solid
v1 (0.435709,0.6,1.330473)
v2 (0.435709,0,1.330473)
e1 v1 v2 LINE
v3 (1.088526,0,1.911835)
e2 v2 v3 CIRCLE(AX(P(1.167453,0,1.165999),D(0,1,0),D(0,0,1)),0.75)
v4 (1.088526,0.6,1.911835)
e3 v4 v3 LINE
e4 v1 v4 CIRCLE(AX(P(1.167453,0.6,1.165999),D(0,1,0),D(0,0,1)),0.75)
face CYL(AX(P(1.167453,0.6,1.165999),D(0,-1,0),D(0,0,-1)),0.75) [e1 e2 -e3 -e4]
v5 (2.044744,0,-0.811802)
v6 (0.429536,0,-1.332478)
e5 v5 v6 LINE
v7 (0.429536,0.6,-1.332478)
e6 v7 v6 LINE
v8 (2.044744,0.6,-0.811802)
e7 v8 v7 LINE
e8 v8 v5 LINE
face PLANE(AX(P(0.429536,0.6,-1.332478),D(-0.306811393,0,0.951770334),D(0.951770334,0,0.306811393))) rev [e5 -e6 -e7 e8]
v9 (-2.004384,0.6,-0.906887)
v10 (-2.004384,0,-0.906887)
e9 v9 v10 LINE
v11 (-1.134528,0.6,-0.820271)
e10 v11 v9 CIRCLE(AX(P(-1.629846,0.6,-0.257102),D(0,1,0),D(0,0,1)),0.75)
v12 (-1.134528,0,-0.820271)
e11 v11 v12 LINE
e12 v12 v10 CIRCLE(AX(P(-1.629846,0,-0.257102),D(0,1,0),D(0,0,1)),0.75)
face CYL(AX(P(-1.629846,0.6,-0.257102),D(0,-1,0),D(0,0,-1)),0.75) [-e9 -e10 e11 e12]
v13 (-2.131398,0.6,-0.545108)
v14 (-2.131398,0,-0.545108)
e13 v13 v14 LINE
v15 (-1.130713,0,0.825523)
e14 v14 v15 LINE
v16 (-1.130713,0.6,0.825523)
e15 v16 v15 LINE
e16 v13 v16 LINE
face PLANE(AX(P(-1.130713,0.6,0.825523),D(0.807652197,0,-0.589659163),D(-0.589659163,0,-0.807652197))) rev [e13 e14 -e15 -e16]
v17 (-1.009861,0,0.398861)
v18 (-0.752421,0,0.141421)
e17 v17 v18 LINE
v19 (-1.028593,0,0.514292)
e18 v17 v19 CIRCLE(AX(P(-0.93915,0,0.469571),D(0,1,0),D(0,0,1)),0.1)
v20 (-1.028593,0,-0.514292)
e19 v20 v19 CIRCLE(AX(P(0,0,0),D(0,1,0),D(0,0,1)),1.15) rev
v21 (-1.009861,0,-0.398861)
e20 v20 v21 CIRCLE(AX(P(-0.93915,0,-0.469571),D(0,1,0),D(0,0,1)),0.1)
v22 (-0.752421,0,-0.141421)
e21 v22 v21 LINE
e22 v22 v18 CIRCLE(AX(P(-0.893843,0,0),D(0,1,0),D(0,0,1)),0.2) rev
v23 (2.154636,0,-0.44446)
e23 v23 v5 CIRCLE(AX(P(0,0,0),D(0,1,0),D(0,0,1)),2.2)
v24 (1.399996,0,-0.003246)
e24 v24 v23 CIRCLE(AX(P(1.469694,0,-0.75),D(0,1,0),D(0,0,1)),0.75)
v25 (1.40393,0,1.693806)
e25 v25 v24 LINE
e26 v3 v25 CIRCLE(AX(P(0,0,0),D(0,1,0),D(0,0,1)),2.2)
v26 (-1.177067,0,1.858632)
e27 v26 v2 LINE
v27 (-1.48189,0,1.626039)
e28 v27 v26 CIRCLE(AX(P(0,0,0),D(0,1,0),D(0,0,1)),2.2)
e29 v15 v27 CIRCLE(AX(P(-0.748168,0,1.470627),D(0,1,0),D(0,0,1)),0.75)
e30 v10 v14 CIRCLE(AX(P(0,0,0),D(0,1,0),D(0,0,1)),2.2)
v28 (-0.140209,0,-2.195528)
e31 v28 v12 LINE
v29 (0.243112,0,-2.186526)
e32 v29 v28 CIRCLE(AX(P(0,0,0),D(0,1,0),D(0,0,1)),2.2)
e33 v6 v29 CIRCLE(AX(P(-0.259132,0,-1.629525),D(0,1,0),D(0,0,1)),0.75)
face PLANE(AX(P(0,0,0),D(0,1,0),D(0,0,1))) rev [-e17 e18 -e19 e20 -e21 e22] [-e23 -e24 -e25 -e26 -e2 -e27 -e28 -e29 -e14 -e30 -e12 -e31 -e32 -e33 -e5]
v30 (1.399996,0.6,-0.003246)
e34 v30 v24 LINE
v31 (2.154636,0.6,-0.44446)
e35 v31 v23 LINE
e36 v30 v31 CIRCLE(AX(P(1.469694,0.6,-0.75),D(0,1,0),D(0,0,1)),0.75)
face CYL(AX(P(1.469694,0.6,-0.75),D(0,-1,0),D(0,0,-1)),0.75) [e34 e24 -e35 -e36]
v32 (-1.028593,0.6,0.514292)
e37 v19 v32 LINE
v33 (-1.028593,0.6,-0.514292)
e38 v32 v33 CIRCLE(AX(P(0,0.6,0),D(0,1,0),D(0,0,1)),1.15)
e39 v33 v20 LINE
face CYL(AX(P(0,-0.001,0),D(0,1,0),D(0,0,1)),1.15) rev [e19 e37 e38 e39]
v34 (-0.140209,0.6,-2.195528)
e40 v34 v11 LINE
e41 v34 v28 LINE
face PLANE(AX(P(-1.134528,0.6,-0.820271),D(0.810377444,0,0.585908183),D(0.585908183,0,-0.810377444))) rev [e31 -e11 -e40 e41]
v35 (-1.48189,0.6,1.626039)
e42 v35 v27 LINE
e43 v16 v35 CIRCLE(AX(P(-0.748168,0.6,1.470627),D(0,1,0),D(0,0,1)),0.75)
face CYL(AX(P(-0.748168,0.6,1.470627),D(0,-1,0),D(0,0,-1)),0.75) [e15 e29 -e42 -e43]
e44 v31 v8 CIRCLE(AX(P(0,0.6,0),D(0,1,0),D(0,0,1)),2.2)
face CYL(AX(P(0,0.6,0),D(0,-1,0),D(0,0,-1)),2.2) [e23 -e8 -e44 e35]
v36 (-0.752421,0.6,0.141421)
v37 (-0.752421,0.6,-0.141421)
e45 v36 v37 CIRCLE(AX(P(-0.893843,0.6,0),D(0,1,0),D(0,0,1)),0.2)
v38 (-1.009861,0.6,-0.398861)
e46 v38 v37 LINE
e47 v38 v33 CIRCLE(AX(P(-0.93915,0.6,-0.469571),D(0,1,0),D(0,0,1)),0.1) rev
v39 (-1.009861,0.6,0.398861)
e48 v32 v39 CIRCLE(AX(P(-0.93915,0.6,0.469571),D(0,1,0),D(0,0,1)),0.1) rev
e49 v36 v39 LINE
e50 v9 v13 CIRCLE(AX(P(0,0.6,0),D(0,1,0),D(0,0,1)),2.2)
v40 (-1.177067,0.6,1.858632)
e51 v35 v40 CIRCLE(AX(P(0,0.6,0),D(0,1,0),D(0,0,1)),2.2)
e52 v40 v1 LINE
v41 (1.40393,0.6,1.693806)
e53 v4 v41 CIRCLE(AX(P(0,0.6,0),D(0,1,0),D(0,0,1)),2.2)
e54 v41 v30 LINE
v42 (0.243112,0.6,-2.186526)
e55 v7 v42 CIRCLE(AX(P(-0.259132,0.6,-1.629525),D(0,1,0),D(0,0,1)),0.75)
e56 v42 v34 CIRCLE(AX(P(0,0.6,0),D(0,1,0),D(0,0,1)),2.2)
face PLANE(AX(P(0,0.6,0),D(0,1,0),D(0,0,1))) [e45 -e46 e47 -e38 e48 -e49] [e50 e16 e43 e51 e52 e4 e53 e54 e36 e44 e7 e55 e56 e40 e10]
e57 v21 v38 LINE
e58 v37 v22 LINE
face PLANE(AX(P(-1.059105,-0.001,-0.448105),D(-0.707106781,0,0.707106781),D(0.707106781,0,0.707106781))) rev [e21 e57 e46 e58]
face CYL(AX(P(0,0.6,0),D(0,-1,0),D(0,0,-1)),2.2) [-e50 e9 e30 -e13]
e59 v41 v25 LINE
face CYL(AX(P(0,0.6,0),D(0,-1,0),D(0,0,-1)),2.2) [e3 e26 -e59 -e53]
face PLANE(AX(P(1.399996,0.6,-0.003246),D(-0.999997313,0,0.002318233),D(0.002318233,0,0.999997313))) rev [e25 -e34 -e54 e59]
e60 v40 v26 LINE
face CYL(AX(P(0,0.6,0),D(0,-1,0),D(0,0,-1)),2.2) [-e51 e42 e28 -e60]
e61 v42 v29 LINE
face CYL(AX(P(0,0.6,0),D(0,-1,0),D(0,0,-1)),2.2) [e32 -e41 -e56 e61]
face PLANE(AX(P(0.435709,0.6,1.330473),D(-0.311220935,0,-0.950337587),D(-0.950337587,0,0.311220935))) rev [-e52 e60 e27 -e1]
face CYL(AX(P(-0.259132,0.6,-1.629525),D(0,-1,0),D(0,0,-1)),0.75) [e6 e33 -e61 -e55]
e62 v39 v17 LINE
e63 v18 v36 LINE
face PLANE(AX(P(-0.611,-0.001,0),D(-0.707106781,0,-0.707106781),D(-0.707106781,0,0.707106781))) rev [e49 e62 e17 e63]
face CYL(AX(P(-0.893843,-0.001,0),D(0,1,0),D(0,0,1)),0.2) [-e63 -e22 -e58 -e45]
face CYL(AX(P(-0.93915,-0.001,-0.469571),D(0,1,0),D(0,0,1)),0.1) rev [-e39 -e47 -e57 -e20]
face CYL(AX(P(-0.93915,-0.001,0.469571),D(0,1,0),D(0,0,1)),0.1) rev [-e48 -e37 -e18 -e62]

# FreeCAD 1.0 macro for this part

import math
import FreeCAD as App
import Part
import Sketcher

V = App.Vector
Q = App.Units.Quantity


def edges_at(feature, points):
    """Names of the edges that pass closest to the given points."""
    edges = feature.Shape.Edges
    near = lambda p: min(range(len(edges)), key=lambda i: edges[i].distToShape(Part.Vertex(*p))[0])
    return sorted({f"Edge{near(p) + 1}" for p in points})

doc = App.newDocument("Part")
body = doc.addObject("PartDesign::Body", "Body")

# Sketch on XZ plane
sketch1 = body.newObject("Sketcher::SketchObject", "Sketch")
sketch1.AttachmentSupport = (doc.getObject("XZ_Plane"), [""])
sketch1.MapMode = "FlatFace"
sketch1.addGeometry(Part.LineSegment(V(-2.131398, -0.545108, 0), V(-1.130713, 0.825523, 0)), False)
sketch1.addGeometry(Part.ArcOfCircle(Part.Circle(V(-0.748168, 1.470627, 0), V(0, 0, 1), 0.75), math.radians(168.040762), math.radians(239.332199)), False)
sketch1.addGeometry(Part.ArcOfCircle(Part.Circle(V(0, 0, 0), V(0, 0, 1), 2.2), math.radians(122.345979), math.radians(132.344462)), False)
sketch1.addGeometry(Part.LineSegment(V(-1.177067, 1.858632, 0), V(0.435709, 1.330473, 0)), False)
sketch1.addGeometry(Part.ArcOfCircle(Part.Circle(V(1.167453, 1.165999, 0), V(0, 0, 1), 0.75), math.radians(96.040762), math.radians(167.332199)), False)
sketch1.addGeometry(Part.ArcOfCircle(Part.Circle(V(0, 0, 0), V(0, 0, 1), 2.2), math.radians(50.345978), math.radians(60.344463)), False)
sketch1.addGeometry(Part.LineSegment(V(1.40393, 1.693806, 0), V(1.399996, -0.003246, 0)), False)
sketch1.addGeometry(Part.ArcOfCircle(Part.Circle(V(1.469694, -0.75, 0), V(0, 0, 1), 0.75), math.radians(24.040762), math.radians(95.332199)), False)
sketch1.addGeometry(Part.ArcOfCircle(Part.Circle(V(0, 0, 0), V(0, 0, 1), 2.2), math.radians(-21.654022), math.radians(-11.655537)), False)
sketch1.addGeometry(Part.LineSegment(V(2.044744, -0.811802, 0), V(0.429536, -1.332478, 0)), False)
sketch1.addGeometry(Part.ArcOfCircle(Part.Circle(V(-0.259132, -1.629525, 0), V(0, 0, 1), 0.75), math.radians(-47.959238), math.radians(23.332199)), False)
sketch1.addGeometry(Part.ArcOfCircle(Part.Circle(V(0, 0, 0), V(0, 0, 1), 2.2), math.radians(-93.654021), math.radians(-83.655538)), False)
sketch1.addGeometry(Part.LineSegment(V(-0.140209, -2.195528, 0), V(-1.134528, -0.820271, 0)), False)
sketch1.addGeometry(Part.ArcOfCircle(Part.Circle(V(-1.629846, -0.257102, 0), V(0, 0, 1), 0.75), math.radians(-119.959238), math.radians(-48.667801)), False)
sketch1.addGeometry(Part.ArcOfCircle(Part.Circle(V(0, 0, 0), V(0, 0, 1), 2.2), math.radians(-165.654021), math.radians(-155.655538)), False)
sketch1.addConstraint(Sketcher.Constraint("Coincident", 0, 2, 1, 2))
sketch1.addConstraint(Sketcher.Constraint("Coincident", 1, 1, 2, 2))
sketch1.addConstraint(Sketcher.Constraint("Coincident", 2, 1, 3, 1))
sketch1.addConstraint(Sketcher.Constraint("Coincident", 3, 2, 4, 2))
sketch1.addConstraint(Sketcher.Constraint("Coincident", 4, 1, 5, 2))
sketch1.addConstraint(Sketcher.Constraint("Coincident", 5, 1, 6, 1))
sketch1.addConstraint(Sketcher.Constraint("Coincident", 6, 2, 7, 2))
sketch1.addConstraint(Sketcher.Constraint("Coincident", 7, 1, 8, 2))
sketch1.addConstraint(Sketcher.Constraint("Coincident", 8, 1, 9, 1))
sketch1.addConstraint(Sketcher.Constraint("Coincident", 9, 2, 10, 2))
sketch1.addConstraint(Sketcher.Constraint("Coincident", 10, 1, 11, 2))
sketch1.addConstraint(Sketcher.Constraint("Coincident", 11, 1, 12, 1))
sketch1.addConstraint(Sketcher.Constraint("Coincident", 12, 2, 13, 2))
sketch1.addConstraint(Sketcher.Constraint("Coincident", 13, 1, 14, 2))
sketch1.addConstraint(Sketcher.Constraint("Coincident", 14, 1, 0, 1))
sketch1.addConstraint(Sketcher.Constraint("Coincident", 2, 3, -1, 1))
sketch1.addConstraint(Sketcher.Constraint("Coincident", 5, 3, -1, 1))
sketch1.addConstraint(Sketcher.Constraint("Coincident", 8, 3, -1, 1))
sketch1.addConstraint(Sketcher.Constraint("Coincident", 11, 3, -1, 1))
sketch1.addConstraint(Sketcher.Constraint("Coincident", 14, 3, -1, 1))
sketch1.addConstraint(Sketcher.Constraint("Radius", 2, Q("2.2 mm")))
sketch1.addConstraint(Sketcher.Constraint("Radius", 5, Q("2.2 mm")))
sketch1.addConstraint(Sketcher.Constraint("Radius", 8, Q("2.2 mm")))
sketch1.addConstraint(Sketcher.Constraint("Radius", 11, Q("2.2 mm")))
sketch1.addConstraint(Sketcher.Constraint("Radius", 14, Q("2.2 mm")))
sketch1.addConstraint(Sketcher.Constraint("Radius", 1, Q("0.75 mm")))
sketch1.addConstraint(Sketcher.Constraint("Radius", 4, Q("0.75 mm")))
sketch1.addConstraint(Sketcher.Constraint("Radius", 7, Q("0.75 mm")))
sketch1.addConstraint(Sketcher.Constraint("Radius", 10, Q("0.75 mm")))
sketch1.addConstraint(Sketcher.Constraint("Radius", 13, Q("0.75 mm")))
sketch1.addConstraint(Sketcher.Constraint("DistanceY", 7, 3, -1, 1, Q("0.75 mm")))
sketch1.addConstraint(Sketcher.Constraint("DistanceY", -1, 1, 4, 3, Q("1.165999 mm")))
sketch1.addConstraint(Sketcher.Constraint("DistanceY", 10, 1, 10, 3, Q("0.557001 mm")))
sketch1.addConstraint(Sketcher.Constraint("DistanceY", 11, 1, 10, 1, Q("0.009001 mm")))
sketch1.addConstraint(Sketcher.Constraint("DistanceY", 13, 3, -1, 1, Q("0.257102 mm")))
sketch1.addConstraint(Sketcher.Constraint("DistanceX", 2, 1, 1, 3, Q("0.428899 mm")))
sketch1.addConstraint(Sketcher.Constraint("DistanceX", 1, 3, 5, 1, Q("2.152099 mm")))
sketch1.addConstraint(Sketcher.Constraint("DistanceY", 8, 1, 4, 3, Q("1.977801 mm")))
sketch1.addConstraint(Sketcher.Constraint("DistanceX", 1, 3, -1, 1, Q("0.748168 mm")))
sketch1.addConstraint(Sketcher.Constraint("DistanceX", 1, 1, -1, 1, Q("1.48189 mm")))
sketch1.addConstraint(Sketcher.Constraint("DistanceX", -1, 1, 3, 2, Q("0.435709 mm")))
sketch1.addConstraint(Sketcher.Constraint("DistanceY", 7, 1, -1, 1, Q("0.44446 mm")))
sketch1.addConstraint(Sketcher.Constraint("DistanceY", 9, 2, -1, 1, Q("1.332478 mm")))
sketch1.addConstraint(Sketcher.Constraint("DistanceX", 11, 1, -1, 1, Q("0.140209 mm")))
sketch1.addConstraint(Sketcher.Constraint("DistanceX", 12, 2, -1, 1, Q("1.134528 mm")))
sketch1.addConstraint(Sketcher.Constraint("DistanceY", 12, 2, -1, 1, Q("0.820271 mm")))
sketch1.addConstraint(Sketcher.Constraint("DistanceY", 14, 1, -1, 1, Q("0.545108 mm")))
sketch1.addConstraint(Sketcher.Constraint("DistanceX", 1, 3, 4, 3, Q("1.915621 mm")))
sketch1.addConstraint(Sketcher.Constraint("DistanceY", 0, 2, 2, 1, Q("1.033109 mm")))
sketch1.addConstraint(Sketcher.Constraint("DistanceX", 6, 2, 7, 1, Q("0.75464 mm")))
pad1 = body.newObject("PartDesign::Pad", "Pad")
pad1.Profile = sketch1
pad1.Length = 0.6
pad1.Reversed = True

# Sketch on XZ plane
sketch2 = body.newObject("Sketcher::SketchObject", "Sketch001")
sketch2.AttachmentSupport = (doc.getObject("XZ_Plane"), [""])
sketch2.MapMode = "FlatFace"
sketch2.AttachmentOffset = App.Placement(V(0, 0, -0.6), App.Rotation())
sketch2.addGeometry(Part.LineSegment(V(-1.1, -0.4, 0), V(-0.6, 0, 0)), False)
sketch2.addGeometry(Part.LineSegment(V(-0.6, 0, 0), V(-1.1, 0.4, 0)), False)
sketch2.addGeometry(Part.ArcOfCircle(Part.Circle(V(0, 0, 0), V(0, 0, 1), 1.1), math.radians(-157), math.radians(157)), False)
sketch2.addConstraint(Sketcher.Constraint("Coincident", 0, 2, 1, 1))
sketch2.addConstraint(Sketcher.Constraint("Coincident", 1, 2, 2, 2))
sketch2.addConstraint(Sketcher.Constraint("Coincident", 2, 1, 0, 1))
sketch2.addConstraint(Sketcher.Constraint("Coincident", 2, 3, -1, 1))
sketch2.addConstraint(Sketcher.Constraint("PointOnObject", 0, 2, -1))
sketch2.addConstraint(Sketcher.Constraint("Perpendicular", 0, 1))
sketch2.addConstraint(Sketcher.Constraint("Vertical", 1, 2, 2, 1))
sketch2.addConstraint(Sketcher.Constraint("Radius", 2, Q("1.15 mm")))
sketch2.addConstraint(Sketcher.Constraint("DistanceX", 0, 2, -1, 1, Q("0.611 mm")))
pocket1 = body.newObject("PartDesign::Pocket", "Pocket")
pocket1.Profile = sketch2
pocket1.Type = "UpToFirst"
pocket1.Reversed = True
doc.recompute()

fillet = body.newObject("PartDesign::Fillet", "Fillet")
fillet.Base = (pocket1, edges_at(pocket1, [(-1.059, 0.3, -0.448), (-1.059, 0.3, 0.448)]))
fillet.Radius = 0.1
doc.recompute()

fillet2 = body.newObject("PartDesign::Fillet", "Fillet001")
fillet2.Base = (fillet, edges_at(fillet, [(-0.611, 0.3, 0)]))
fillet2.Radius = 0.2

doc.recompute()
